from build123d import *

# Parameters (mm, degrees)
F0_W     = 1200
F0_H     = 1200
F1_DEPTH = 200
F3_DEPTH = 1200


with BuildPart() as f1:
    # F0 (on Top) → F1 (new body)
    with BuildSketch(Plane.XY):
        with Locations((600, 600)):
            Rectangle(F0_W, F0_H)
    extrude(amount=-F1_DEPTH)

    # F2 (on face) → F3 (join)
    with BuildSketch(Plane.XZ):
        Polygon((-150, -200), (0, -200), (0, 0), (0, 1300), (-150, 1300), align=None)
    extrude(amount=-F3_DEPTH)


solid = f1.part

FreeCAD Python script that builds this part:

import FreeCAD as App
import Part
import Sketcher

V = App.Vector

doc = App.newDocument("Part")
body = doc.addObject("PartDesign::Body", "Body")

sketch1 = doc.addObject("Sketcher::SketchObject", "Sketch")
body.addObject(sketch1)
sketch1.AttachmentSupport = (doc.XY_Plane, [""])
sketch1.MapMode = "FlatFace"
sketch1.addGeometry(Part.LineSegment(V(0, 1200, 0), V(0, 0, 0)), False)
sketch1.addGeometry(Part.LineSegment(V(0, 0, 0), V(1200, 0, 0)), False)
sketch1.addGeometry(Part.LineSegment(V(1200, 0, 0), V(1200, 1200, 0)), False)
sketch1.addGeometry(Part.LineSegment(V(1200, 1200, 0), V(0, 1200, 0)), False)
sketch1.addConstraint(Sketcher.Constraint("Coincident", 0, 2, 1, 1))
sketch1.addConstraint(Sketcher.Constraint("Coincident", 1, 2, 2, 1))
sketch1.addConstraint(Sketcher.Constraint("Coincident", 2, 2, 3, 1))
sketch1.addConstraint(Sketcher.Constraint("Coincident", 3, 2, 0, 1))
sketch1.addConstraint(Sketcher.Constraint("Vertical", 0))
sketch1.addConstraint(Sketcher.Constraint("Horizontal", 1))
sketch1.addConstraint(Sketcher.Constraint("Vertical", 2))
sketch1.addConstraint(Sketcher.Constraint("Horizontal", 3))
sketch1.addConstraint(Sketcher.Constraint("Coincident", 0, 2, -1, 1))
sketch1.addConstraint(Sketcher.Constraint("Equal", 3, 0))
sketch1.addConstraint(Sketcher.Constraint("DistanceX", 1, 1, 1, 2, 1200.0))
pad1 = doc.addObject("PartDesign::Pad", "Pad")
body.addObject(pad1)
pad1.Profile = sketch1
pad1.Length = 200
pad1.Reversed = True

sketch2 = doc.addObject("Sketcher::SketchObject", "Sketch001")
body.addObject(sketch2)
sketch2.AttachmentSupport = (doc.XZ_Plane, [""])
sketch2.MapMode = "FlatFace"
sketch2.addGeometry(Part.LineSegment(V(-150, -200, 0), V(0, -200, 0)), False)
sketch2.addGeometry(Part.LineSegment(V(0, -200, 0), V(0, 1300, 0)), False)
sketch2.addGeometry(Part.LineSegment(V(0, 1300, 0), V(-150, 1300, 0)), False)
sketch2.addGeometry(Part.LineSegment(V(-150, 1300, 0), V(-150, -200, 0)), False)
sketch2.addConstraint(Sketcher.Constraint("Coincident", 0, 2, 1, 1))
sketch2.addConstraint(Sketcher.Constraint("Coincident", 1, 2, 2, 1))
sketch2.addConstraint(Sketcher.Constraint("Coincident", 2, 2, 3, 1))
sketch2.addConstraint(Sketcher.Constraint("Coincident", 3, 2, 0, 1))
sketch2.addConstraint(Sketcher.Constraint("Horizontal", 0))
sketch2.addConstraint(Sketcher.Constraint("Vertical", 1))
sketch2.addConstraint(Sketcher.Constraint("Horizontal", 2))
sketch2.addConstraint(Sketcher.Constraint("Vertical", 3))
sketch2.addConstraint(Sketcher.Constraint("PointOnObject", 0, 2, -2))
sketch2.addConstraint(Sketcher.Constraint("DistanceX", 0, 1, 0, 2, 150.0))
sketch2.addConstraint(Sketcher.Constraint("DistanceY", 1, 1, 1, 2, 1500.0))
sketch2.addConstraint(Sketcher.Constraint("DistanceY", 0, 2, -1, 1, 200.0))
pad2 = doc.addObject("PartDesign::Pad", "Pad001")
body.addObject(pad2)
pad2.Profile = sketch2
pad2.Length = 1200
pad2.Reversed = True

doc.recompute()
